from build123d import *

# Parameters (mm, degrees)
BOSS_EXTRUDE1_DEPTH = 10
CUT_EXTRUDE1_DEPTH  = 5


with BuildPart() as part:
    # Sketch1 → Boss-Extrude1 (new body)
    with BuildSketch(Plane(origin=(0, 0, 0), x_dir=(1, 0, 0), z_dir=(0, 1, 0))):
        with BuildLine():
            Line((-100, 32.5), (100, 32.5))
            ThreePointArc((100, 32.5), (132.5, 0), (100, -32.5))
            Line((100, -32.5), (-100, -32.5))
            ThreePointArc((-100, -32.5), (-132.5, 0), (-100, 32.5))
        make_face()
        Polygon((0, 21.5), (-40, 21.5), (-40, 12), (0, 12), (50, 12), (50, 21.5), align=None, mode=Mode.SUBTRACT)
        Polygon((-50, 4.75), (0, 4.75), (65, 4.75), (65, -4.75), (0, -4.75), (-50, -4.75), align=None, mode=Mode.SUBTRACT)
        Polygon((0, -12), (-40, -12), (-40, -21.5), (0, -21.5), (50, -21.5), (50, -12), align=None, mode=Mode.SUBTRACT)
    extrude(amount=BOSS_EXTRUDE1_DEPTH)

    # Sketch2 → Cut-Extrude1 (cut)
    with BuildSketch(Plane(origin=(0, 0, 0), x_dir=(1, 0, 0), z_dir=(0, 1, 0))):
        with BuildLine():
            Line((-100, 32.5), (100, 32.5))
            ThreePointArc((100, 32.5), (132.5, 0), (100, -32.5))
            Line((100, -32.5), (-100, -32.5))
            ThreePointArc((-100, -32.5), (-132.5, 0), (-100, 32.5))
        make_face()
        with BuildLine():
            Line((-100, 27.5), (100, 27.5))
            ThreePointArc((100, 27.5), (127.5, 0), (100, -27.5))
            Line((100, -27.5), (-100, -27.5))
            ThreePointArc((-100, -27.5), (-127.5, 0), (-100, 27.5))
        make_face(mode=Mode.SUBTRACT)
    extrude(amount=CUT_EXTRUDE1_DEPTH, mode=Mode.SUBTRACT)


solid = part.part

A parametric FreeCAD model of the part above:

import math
import FreeCAD as App
import Part
import Sketcher
Q = App.Units.Quantity

doc = App.newDocument("Part")
body = doc.addObject("PartDesign::Body", "Body")

sketch1 = doc.addObject("Sketcher::SketchObject", "Sketch")
body.addObject(sketch1)
sketch1.AttachmentSupport = (doc.XZ_Plane, [""])
sketch1.MapMode = "FlatFace"
sketch1.addGeometry([
    Part.LineSegment(App.Vector(100, -32, 0), App.Vector(-100, -32, 0)),
    Part.ArcOfCircle(Part.Circle(App.Vector(-100, 0, 0), App.Vector(0, 0, 1), 32), math.radians(90), math.radians(270)),
    Part.LineSegment(App.Vector(-100, 32, 0), App.Vector(100, 32, 0)),
    Part.ArcOfCircle(Part.Circle(App.Vector(100, 0, 0), App.Vector(0, 0, 1), 32), math.radians(-90), math.radians(90)),
    Part.LineSegment(App.Vector(50, 12, 0), App.Vector(50, 22, 0)),
    Part.LineSegment(App.Vector(50, 22, 0), App.Vector(-40, 22, 0)),
    Part.LineSegment(App.Vector(-40, 22, 0), App.Vector(-40, 12, 0)),
    Part.LineSegment(App.Vector(-40, 12, 0), App.Vector(50, 12, 0)),
    Part.LineSegment(App.Vector(-50, -5, 0), App.Vector(65, -5, 0)),
    Part.LineSegment(App.Vector(65, -5, 0), App.Vector(65, 5, 0)),
    Part.LineSegment(App.Vector(65, 5, 0), App.Vector(-50, 5, 0)),
    Part.LineSegment(App.Vector(-50, 5, 0), App.Vector(-50, -5, 0)),
    Part.LineSegment(App.Vector(50, -22, 0), App.Vector(50, -12, 0)),
    Part.LineSegment(App.Vector(50, -12, 0), App.Vector(-40, -12, 0)),
    Part.LineSegment(App.Vector(-40, -12, 0), App.Vector(-40, -22, 0)),
    Part.LineSegment(App.Vector(-40, -22, 0), App.Vector(50, -22, 0)),
], False)
sketch1.addConstraint([
    Sketcher.Constraint("Tangent", 0, 2, 1, 2),
    Sketcher.Constraint("Tangent", 1, 1, 2, 1),
    Sketcher.Constraint("Tangent", 2, 2, 3, 2),
    Sketcher.Constraint("Tangent", 3, 1, 0, 1),
    Sketcher.Constraint("Coincident", 4, 2, 5, 1),
    Sketcher.Constraint("Coincident", 5, 2, 6, 1),
    Sketcher.Constraint("Coincident", 6, 2, 7, 1),
    Sketcher.Constraint("Coincident", 7, 2, 4, 1),
    Sketcher.Constraint("Coincident", 8, 2, 9, 1),
    Sketcher.Constraint("Coincident", 9, 2, 10, 1),
    Sketcher.Constraint("Coincident", 10, 2, 11, 1),
    Sketcher.Constraint("Coincident", 11, 2, 8, 1),
    Sketcher.Constraint("Coincident", 12, 2, 13, 1),
    Sketcher.Constraint("Coincident", 13, 2, 14, 1),
    Sketcher.Constraint("Coincident", 14, 2, 15, 1),
    Sketcher.Constraint("Coincident", 15, 2, 12, 1),
    Sketcher.Constraint("Horizontal", 0),
    Sketcher.Constraint("Horizontal", 2),
    Sketcher.Constraint("Vertical", 4),
    Sketcher.Constraint("Horizontal", 5),
    Sketcher.Constraint("Vertical", 6),
    Sketcher.Constraint("Horizontal", 7),
    Sketcher.Constraint("Horizontal", 8),
    Sketcher.Constraint("Vertical", 9),
    Sketcher.Constraint("Horizontal", 10),
    Sketcher.Constraint("Vertical", 11),
    Sketcher.Constraint("Vertical", 12),
    Sketcher.Constraint("Horizontal", 13),
    Sketcher.Constraint("Vertical", 14),
    Sketcher.Constraint("Horizontal", 15),
    Sketcher.Constraint("Symmetric", 1, 3, 3, 3, -1, 1),
    Sketcher.Constraint("Symmetric", 7, 2, 12, 2, -1),
    Sketcher.Constraint("Symmetric", 5, 2, 14, 2, -1),
    Sketcher.Constraint("Equal", 6, 9),
    Sketcher.Constraint("Radius", 1, Q("32.5 mm")),
    Sketcher.Constraint("DistanceX", 0, 2, 0, 1, Q("200 mm")),
    Sketcher.Constraint("DistanceX", 5, 2, 5, 1, Q("90 mm")),
    Sketcher.Constraint("DistanceX", 8, 1, 8, 2, Q("115 mm")),
    Sketcher.Constraint("DistanceY", 4, 1, 4, 2, Q("9.5 mm")),
    Sketcher.Constraint("DistanceX", -1, 1, 4, 2, Q("50 mm")),
    Sketcher.Constraint("DistanceY", -1, 1, 6, 2, Q("12 mm")),
    Sketcher.Constraint("DistanceX", -1, 1, 8, 2, Q("65 mm")),
    Sketcher.Constraint("DistanceY", 8, 2, -1, 1, Q("4.75 mm")),
])
pad1 = doc.addObject("PartDesign::Pad", "Pad")
body.addObject(pad1)
pad1.Profile = sketch1
pad1.Length = 10
pad1.Reversed = True

sketch2 = doc.addObject("Sketcher::SketchObject", "Sketch001")
body.addObject(sketch2)
sketch2.AttachmentSupport = (doc.XZ_Plane, [""])
sketch2.MapMode = "FlatFace"
sketch2.addGeometry([
    Part.LineSegment(App.Vector(100, -32, 0), App.Vector(-100, -32, 0)),
    Part.ArcOfCircle(Part.Circle(App.Vector(-100, 0, 0), App.Vector(0, 0, 1), 32), math.radians(90), math.radians(270)),
    Part.LineSegment(App.Vector(-100, 32, 0), App.Vector(100, 32, 0)),
    Part.ArcOfCircle(Part.Circle(App.Vector(100, 0, 0), App.Vector(0, 0, 1), 32), math.radians(-90), math.radians(90)),
    Part.LineSegment(App.Vector(-100, -28, 0), App.Vector(100, -28, 0)),
    Part.ArcOfCircle(Part.Circle(App.Vector(100, 0, 0), App.Vector(0, 0, 1), 28), math.radians(-90), math.radians(90)),
    Part.LineSegment(App.Vector(100, 28, 0), App.Vector(-100, 28, 0)),
    Part.ArcOfCircle(Part.Circle(App.Vector(-100, 0, 0), App.Vector(0, 0, 1), 28), math.radians(90), math.radians(270)),
], False)
sketch2.addConstraint([
    Sketcher.Constraint("Tangent", 0, 2, 1, 2),
    Sketcher.Constraint("Tangent", 1, 1, 2, 1),
    Sketcher.Constraint("Tangent", 2, 2, 3, 2),
    Sketcher.Constraint("Tangent", 3, 1, 0, 1),
    Sketcher.Constraint("Tangent", 4, 2, 5, 1),
    Sketcher.Constraint("Tangent", 5, 2, 6, 1),
    Sketcher.Constraint("Tangent", 6, 2, 7, 1),
    Sketcher.Constraint("Tangent", 7, 2, 4, 1),
    Sketcher.Constraint("Horizontal", 0),
    Sketcher.Constraint("Horizontal", 2),
    Sketcher.Constraint("Horizontal", 4),
    Sketcher.Constraint("Horizontal", 6),
    Sketcher.Constraint("Coincident", 5, 3, 3, 3),
    Sketcher.Constraint("Symmetric", 1, 3, 3, 3, -1, 1),
    Sketcher.Constraint("Vertical", 7, 3, 0, 2),
    Sketcher.Constraint("Radius", 1, Q("32.5 mm")),
    Sketcher.Constraint("Radius", 5, Q("27.5 mm")),
    Sketcher.Constraint("DistanceX", 0, 2, 0, 1, Q("200 mm")),
])
pocket1 = doc.addObject("PartDesign::Pocket", "Pocket")
body.addObject(pocket1)
pocket1.Profile = sketch2
pocket1.Length = 5

doc.recompute()
